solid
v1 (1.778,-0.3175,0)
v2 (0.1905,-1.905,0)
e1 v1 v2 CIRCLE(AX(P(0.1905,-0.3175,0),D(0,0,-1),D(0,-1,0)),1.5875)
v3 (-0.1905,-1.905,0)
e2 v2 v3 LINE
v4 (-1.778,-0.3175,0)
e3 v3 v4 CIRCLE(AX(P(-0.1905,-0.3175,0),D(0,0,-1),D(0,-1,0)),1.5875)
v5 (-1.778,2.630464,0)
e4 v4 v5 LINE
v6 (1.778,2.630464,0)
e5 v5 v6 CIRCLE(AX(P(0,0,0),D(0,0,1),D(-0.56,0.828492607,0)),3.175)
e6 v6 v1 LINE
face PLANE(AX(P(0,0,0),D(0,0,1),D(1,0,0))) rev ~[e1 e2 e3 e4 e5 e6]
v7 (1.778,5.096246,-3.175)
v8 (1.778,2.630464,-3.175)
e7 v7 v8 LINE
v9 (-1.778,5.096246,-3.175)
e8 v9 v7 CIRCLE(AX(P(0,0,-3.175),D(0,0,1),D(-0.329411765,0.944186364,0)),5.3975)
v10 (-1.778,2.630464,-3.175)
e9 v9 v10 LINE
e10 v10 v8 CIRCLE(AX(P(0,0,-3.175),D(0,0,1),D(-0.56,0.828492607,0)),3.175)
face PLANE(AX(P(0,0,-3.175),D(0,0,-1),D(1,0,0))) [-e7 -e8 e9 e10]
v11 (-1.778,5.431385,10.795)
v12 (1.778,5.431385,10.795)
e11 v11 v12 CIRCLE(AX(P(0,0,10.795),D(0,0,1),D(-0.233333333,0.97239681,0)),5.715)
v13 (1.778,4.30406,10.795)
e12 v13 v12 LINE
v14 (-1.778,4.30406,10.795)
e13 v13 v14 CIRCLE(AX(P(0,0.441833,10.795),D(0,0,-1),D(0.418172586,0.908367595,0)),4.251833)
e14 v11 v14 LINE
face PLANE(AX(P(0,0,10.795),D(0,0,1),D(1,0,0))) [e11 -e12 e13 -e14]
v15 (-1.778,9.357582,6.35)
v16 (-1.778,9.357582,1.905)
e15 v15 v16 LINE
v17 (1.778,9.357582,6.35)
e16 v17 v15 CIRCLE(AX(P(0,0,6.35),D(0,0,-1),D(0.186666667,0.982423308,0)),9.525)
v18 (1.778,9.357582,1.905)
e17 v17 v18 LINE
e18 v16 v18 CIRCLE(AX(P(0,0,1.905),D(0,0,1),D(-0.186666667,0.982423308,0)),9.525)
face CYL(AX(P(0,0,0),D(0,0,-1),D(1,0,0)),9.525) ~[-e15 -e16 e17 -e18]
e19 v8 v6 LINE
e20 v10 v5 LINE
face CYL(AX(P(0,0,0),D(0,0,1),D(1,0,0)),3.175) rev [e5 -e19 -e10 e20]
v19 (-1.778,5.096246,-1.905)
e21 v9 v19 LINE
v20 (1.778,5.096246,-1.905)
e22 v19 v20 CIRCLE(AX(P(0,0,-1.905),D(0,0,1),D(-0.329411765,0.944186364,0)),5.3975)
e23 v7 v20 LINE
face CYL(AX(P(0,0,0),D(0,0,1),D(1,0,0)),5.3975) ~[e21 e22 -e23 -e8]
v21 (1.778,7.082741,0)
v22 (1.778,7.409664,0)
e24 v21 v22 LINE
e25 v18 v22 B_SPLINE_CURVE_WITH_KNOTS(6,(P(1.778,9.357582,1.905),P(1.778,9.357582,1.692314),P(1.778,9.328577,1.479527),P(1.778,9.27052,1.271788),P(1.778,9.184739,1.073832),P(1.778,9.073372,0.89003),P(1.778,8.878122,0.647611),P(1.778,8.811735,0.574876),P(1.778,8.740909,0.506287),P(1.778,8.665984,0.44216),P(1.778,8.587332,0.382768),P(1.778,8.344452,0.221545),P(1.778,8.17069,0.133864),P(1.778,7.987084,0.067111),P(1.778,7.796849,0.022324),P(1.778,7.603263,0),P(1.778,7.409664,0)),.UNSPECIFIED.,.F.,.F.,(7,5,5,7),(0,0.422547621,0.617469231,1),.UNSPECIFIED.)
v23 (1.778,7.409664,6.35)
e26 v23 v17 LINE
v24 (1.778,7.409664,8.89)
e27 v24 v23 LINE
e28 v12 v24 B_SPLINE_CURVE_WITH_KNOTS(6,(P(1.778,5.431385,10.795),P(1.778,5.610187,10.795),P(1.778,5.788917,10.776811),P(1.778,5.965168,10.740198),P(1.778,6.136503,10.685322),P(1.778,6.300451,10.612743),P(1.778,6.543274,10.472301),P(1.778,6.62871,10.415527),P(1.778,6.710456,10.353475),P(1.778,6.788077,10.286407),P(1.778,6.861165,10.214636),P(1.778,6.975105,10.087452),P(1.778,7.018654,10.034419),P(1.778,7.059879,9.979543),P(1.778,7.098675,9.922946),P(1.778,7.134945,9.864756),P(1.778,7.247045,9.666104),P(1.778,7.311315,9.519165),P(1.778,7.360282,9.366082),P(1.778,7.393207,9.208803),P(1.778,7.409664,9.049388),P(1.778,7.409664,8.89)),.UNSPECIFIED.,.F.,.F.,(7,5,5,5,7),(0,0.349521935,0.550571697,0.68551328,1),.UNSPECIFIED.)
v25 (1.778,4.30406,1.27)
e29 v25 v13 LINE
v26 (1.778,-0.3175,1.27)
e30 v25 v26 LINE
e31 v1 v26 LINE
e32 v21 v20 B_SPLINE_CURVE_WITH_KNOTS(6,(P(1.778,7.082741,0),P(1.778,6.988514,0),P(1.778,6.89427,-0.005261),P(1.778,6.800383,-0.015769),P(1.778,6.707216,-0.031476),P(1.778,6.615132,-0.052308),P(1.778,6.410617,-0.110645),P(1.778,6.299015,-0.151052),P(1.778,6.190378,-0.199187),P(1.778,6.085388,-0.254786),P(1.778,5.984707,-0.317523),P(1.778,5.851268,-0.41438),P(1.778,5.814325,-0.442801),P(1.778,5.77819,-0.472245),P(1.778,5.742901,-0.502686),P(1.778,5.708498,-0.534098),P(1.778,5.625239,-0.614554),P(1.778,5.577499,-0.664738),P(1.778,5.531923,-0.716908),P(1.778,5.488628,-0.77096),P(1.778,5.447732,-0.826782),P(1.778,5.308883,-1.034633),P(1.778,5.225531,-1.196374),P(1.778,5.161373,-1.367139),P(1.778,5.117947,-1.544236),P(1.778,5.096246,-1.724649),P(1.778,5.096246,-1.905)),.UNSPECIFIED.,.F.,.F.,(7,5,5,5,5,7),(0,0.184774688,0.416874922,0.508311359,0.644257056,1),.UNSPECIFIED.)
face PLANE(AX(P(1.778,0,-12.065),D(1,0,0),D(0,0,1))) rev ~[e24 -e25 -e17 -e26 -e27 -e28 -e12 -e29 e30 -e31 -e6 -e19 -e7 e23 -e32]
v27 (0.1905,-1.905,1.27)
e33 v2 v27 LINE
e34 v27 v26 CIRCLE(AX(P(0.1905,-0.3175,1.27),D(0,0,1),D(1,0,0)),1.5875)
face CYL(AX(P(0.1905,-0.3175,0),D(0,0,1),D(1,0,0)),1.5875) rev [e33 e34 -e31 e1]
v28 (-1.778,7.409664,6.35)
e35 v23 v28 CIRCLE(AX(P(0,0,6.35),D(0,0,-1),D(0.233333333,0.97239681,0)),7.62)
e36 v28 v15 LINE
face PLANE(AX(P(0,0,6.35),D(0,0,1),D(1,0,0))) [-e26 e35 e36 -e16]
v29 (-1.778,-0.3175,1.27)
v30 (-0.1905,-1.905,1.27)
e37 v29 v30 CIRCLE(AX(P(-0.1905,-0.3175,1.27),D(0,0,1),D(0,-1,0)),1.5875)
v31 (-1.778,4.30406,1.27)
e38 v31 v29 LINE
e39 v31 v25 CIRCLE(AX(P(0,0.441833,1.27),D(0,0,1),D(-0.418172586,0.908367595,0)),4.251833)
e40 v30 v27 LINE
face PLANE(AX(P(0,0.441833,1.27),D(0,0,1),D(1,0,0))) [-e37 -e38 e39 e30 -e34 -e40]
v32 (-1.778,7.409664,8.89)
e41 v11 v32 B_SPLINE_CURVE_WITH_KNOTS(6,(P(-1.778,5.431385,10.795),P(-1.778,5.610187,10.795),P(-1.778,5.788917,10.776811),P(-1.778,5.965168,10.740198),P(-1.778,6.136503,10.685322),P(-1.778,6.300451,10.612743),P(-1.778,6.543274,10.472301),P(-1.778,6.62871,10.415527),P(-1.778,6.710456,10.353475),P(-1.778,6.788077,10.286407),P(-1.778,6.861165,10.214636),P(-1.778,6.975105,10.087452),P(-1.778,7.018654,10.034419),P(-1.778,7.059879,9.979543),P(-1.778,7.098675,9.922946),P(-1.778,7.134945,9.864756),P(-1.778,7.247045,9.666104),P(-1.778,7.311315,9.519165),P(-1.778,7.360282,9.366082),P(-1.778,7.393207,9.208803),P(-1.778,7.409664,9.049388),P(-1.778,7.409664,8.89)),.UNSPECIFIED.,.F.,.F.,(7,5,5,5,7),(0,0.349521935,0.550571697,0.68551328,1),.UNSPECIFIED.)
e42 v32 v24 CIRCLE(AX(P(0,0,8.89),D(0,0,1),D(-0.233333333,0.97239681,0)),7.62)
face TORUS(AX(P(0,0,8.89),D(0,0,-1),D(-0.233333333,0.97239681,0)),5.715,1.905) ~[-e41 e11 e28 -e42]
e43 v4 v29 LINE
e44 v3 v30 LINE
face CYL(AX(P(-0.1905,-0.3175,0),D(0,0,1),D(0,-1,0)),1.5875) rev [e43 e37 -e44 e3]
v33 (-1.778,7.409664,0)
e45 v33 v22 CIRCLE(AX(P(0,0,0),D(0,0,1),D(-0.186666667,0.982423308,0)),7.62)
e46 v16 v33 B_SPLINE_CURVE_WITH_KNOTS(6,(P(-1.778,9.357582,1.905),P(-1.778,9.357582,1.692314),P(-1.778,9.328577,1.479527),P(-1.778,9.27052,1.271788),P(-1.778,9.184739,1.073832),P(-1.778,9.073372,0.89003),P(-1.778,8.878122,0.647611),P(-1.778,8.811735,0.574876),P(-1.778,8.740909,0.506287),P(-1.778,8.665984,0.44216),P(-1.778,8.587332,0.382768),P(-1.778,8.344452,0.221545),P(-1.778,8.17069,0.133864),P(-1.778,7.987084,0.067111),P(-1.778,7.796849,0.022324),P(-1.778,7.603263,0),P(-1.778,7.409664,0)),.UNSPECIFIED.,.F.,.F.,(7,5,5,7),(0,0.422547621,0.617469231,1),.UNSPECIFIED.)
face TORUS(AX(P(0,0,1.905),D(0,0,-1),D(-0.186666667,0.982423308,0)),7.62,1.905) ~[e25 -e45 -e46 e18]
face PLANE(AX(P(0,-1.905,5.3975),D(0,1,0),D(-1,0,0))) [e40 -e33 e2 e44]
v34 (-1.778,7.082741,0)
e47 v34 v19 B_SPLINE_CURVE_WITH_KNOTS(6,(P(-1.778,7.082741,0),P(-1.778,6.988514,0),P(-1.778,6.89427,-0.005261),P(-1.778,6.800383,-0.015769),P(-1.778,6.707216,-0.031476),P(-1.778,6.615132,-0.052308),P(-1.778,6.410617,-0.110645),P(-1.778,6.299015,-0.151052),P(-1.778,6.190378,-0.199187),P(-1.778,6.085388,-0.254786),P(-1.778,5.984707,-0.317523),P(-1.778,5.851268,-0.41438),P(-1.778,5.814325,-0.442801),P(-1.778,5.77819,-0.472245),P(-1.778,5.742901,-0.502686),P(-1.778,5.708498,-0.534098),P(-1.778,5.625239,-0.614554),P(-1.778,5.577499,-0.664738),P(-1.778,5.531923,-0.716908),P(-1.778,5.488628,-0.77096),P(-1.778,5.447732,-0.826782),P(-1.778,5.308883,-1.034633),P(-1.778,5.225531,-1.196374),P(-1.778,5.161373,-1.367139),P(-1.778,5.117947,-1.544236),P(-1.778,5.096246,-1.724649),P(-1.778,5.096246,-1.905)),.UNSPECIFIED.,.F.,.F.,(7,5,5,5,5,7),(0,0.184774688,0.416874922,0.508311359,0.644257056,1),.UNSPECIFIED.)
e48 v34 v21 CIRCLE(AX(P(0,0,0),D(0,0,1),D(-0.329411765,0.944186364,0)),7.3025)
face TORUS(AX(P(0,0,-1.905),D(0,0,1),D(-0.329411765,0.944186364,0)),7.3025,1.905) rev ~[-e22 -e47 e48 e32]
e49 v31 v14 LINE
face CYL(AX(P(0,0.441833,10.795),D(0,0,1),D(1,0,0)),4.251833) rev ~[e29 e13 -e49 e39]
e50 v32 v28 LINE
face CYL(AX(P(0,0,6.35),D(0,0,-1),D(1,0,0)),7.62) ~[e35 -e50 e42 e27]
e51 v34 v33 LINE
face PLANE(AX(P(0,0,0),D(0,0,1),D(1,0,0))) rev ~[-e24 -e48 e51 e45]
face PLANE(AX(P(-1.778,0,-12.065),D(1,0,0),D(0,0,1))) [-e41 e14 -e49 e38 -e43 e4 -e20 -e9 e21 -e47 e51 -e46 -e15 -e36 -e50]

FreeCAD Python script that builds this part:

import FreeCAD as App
import Part
import Sketcher
Q = App.Units.Quantity


def edges_at(feature, points):
    """Names of the edges that pass closest to the given points."""
    edges = feature.Shape.Edges
    near = lambda p: min(range(len(edges)), key=lambda i: edges[i].distToShape(Part.Vertex(*p))[0])
    return sorted({f"Edge{near(p) + 1}" for p in points})


def add_polygon(sketch, points):
    """Adds a closed chain of lines whose ends are joined by coincident constraints."""
    first, n = sketch.GeometryCount, len(points)
    for a, b in zip(points, points[1:] + points[:1]):
        sketch.addGeometry(Part.LineSegment(App.Vector(*a, 0), App.Vector(*b, 0)), False)
    for i in range(n):
        sketch.addConstraint(Sketcher.Constraint("Coincident", first + i, 2, first + (i + 1) % n, 1))

doc = App.newDocument("Part")
params = doc.addObject("Spreadsheet::Sheet", "Params")
for row, (alias, value) in enumerate([
    ("sketch1_diameter", "0.75 in"),
    ("pad1_length", "0.25 in"),
    ("sketch2_diameter", "0.6 in"),
    ("pad2_length", "0.175 in"),
    ("sketch3_diameter", "0.25 in"),
    ("sketch3_diameter2", "0.425 in"),
    ("pad3_length", "0.125 in"),
    ("sketch4_height", "1 in"),
    ("sketch4_width", "0.14 in"),
    ("pocket1_length", "0.5 in"),
    ("sketch5_width", "0.14 in"),
    ("sketch5_height", "0.425 in"),
    ("pocket2_length", "0.075 in"),
    ("fillet_radius", "0.0625 in"),
    ("fillet2_radius", "0.075 in"),
    ("pocket3_length", "0.375 in"),
], start=1):
    params.set(f"A{row}", alias)
    params.set(f"B{row}", "=" + value)
    params.setAlias(f"B{row}", alias)

body = doc.addObject("PartDesign::Body", "Body")

# Sketch on XY plane
sketch1 = body.newObject("Sketcher::SketchObject", "Sketch")
sketch1.AttachmentSupport = (doc.getObject("XY_Plane"), [""])
sketch1.MapMode = "FlatFace"
sketch1.addGeometry(Part.Circle(App.Vector(0, 0, 0), App.Vector(0, 0, 1), 10), False)
sketch1.addConstraint(Sketcher.Constraint("Coincident", 0, 3, -1, 1))
sketch1.addConstraint(Sketcher.Constraint("Diameter", 0, Q("0.75 in")))
sketch1.setExpression("Constraints[1]", "Params.sketch1_diameter")
pad1 = body.newObject("PartDesign::Pad", "Pad")
pad1.Profile = sketch1
pad1.setExpression("Length", "Params.pad1_length")

# Sketch on XY plane
sketch2 = body.newObject("Sketcher::SketchObject", "Sketch001")
sketch2.AttachmentSupport = (doc.getObject("XY_Plane"), [""])
sketch2.MapMode = "FlatFace"
sketch2.AttachmentOffset = App.Placement(App.Vector(0, 0, 0.25 * 25.4), App.Rotation())
sketch2.addGeometry(Part.Circle(App.Vector(0, 0, 0), App.Vector(0, 0, 1), 8), False)
sketch2.addConstraint(Sketcher.Constraint("Coincident", 0, 3, -1, 1))
sketch2.addConstraint(Sketcher.Constraint("Diameter", 0, Q("0.6 in")))
sketch2.setExpression("Constraints[1]", "Params.sketch2_diameter")
pad2 = body.newObject("PartDesign::Pad", "Pad001")
pad2.Profile = sketch2
pad2.setExpression("Length", "Params.pad2_length")

# Sketch on XY plane
sketch3 = body.newObject("Sketcher::SketchObject", "Sketch002")
sketch3.AttachmentSupport = (doc.getObject("XY_Plane"), [""])
sketch3.MapMode = "FlatFace"
sketch3.addGeometry(Part.Circle(App.Vector(0, 0, 0), App.Vector(0, 0, 1), 5.4), False)
sketch3.addGeometry(Part.Circle(App.Vector(0, 0, 0), App.Vector(0, 0, 1), 3.2), False)
sketch3.addConstraint(Sketcher.Constraint("Coincident", 0, 3, -1, 1))
sketch3.addConstraint(Sketcher.Constraint("Coincident", 1, 3, -1, 1))
sketch3.addConstraint(Sketcher.Constraint("Diameter", 1, Q("0.25 in")))
sketch3.addConstraint(Sketcher.Constraint("Diameter", 0, Q("0.425 in")))
sketch3.setExpression("Constraints[2]", "Params.sketch3_diameter")
sketch3.setExpression("Constraints[3]", "Params.sketch3_diameter2")
pad3 = body.newObject("PartDesign::Pad", "Pad002")
pad3.Profile = sketch3
pad3.setExpression("Length", "Params.pad3_length")
pad3.Reversed = True

# Sketch on XZ plane
sketch4 = body.newObject("Sketcher::SketchObject", "Sketch003")
sketch4.AttachmentSupport = (doc.getObject("XZ_Plane"), [""])
sketch4.MapMode = "FlatFace"
add_polygon(sketch4, [(-1.8, 13.3), (-1.8, -12.1), (1.8, -12.1), (1.8, 13.3)])  # lines 0-3
sketch4.addConstraint(Sketcher.Constraint("Vertical", 0))
sketch4.addConstraint(Sketcher.Constraint("Horizontal", 1))
sketch4.addConstraint(Sketcher.Constraint("Vertical", 2))
sketch4.addConstraint(Sketcher.Constraint("Horizontal", 3))
sketch4.addConstraint(Sketcher.Constraint("DistanceY", 0, 2, 0, 1, Q("1 in")))
sketch4.addConstraint(Sketcher.Constraint("DistanceX", 1, 1, 1, 2, Q("0.14 in")))
sketch4.addConstraint(Sketcher.Constraint("DistanceX", 0, 2, -1, 1, Q("0.07 in")))
sketch4.addConstraint(Sketcher.Constraint("DistanceY", 0, 2, -1, 1, Q("0.475 in")))
sketch4.setExpression("Constraints[8]", "Params.sketch4_height")
sketch4.setExpression("Constraints[9]", "Params.sketch4_width")
pocket1 = body.newObject("PartDesign::Pocket", "Pocket")
pocket1.Profile = sketch4
pocket1.setExpression("Length", "Params.pocket1_length")

# Sketch on XZ plane
sketch5 = body.newObject("Sketcher::SketchObject", "Sketch004")
sketch5.AttachmentSupport = (doc.getObject("XZ_Plane"), [""])
sketch5.MapMode = "FlatFace"
add_polygon(sketch5, [(1.8, 10.8), (1.8, 0), (-1.8, 0), (-1.8, 10.8)])  # lines 0-3
sketch5.addConstraint(Sketcher.Constraint("Vertical", 0))
sketch5.addConstraint(Sketcher.Constraint("Horizontal", 1))
sketch5.addConstraint(Sketcher.Constraint("Vertical", 2))
sketch5.addConstraint(Sketcher.Constraint("Horizontal", 3))
sketch5.addConstraint(Sketcher.Constraint("Symmetric", 0, 2, 1, 2, -1, 1))
sketch5.addConstraint(Sketcher.Constraint("DistanceX", 1, 2, 1, 1, Q("0.14 in")))
sketch5.addConstraint(Sketcher.Constraint("DistanceY", 0, 2, 0, 1, Q("0.425 in")))
sketch5.setExpression("Constraints[9]", "Params.sketch5_width")
sketch5.setExpression("Constraints[10]", "Params.sketch5_height")
pocket2 = body.newObject("PartDesign::Pocket", "Pocket001")
pocket2.Profile = sketch5
pocket2.setExpression("Length", "Params.pocket2_length")
pocket2.Reversed = True
doc.recompute()

fillet = body.newObject("PartDesign::Fillet", "Fillet")
fillet.Base = (pocket2, edges_at(pocket2, [(-1.778, -1.905, 5.397), (1.778, -1.905, 5.397)]))
fillet.setExpression("Radius", "Params.fillet_radius")
doc.recompute()

fillet2 = body.newObject("PartDesign::Fillet", "Fillet001")
fillet2.Base = (fillet, edges_at(fillet, [(0, -5.397, 0), (0, -9.525, 0), (0, -7.62, 10.795)]))
fillet2.setExpression("Radius", "Params.fillet2_radius")

# Sketch on XY plane
sketch6 = body.newObject("Sketcher::SketchObject", "Sketch005")
sketch6.AttachmentSupport = (doc.getObject("XY_Plane"), [""])
sketch6.MapMode = "FlatFace"
sketch6.AttachmentOffset = App.Placement(App.Vector(0, 0, 0.425 * 25.4), App.Rotation())
sketch6.addGeometry(Part.Circle(App.Vector(0, 0.4, 0), App.Vector(0, 0, 1), 4.3), False)
sketch6.addConstraint(Sketcher.Constraint("PointOnObject", 0, 3, -2))
sketch6.addConstraint(Sketcher.Constraint("Diameter", 0, Q("8.503666 mm")))
sketch6.addConstraint(Sketcher.Constraint("DistanceY", -1, 1, 0, 3, Q("0.441833 mm")))
pocket3 = body.newObject("PartDesign::Pocket", "Pocket002")
pocket3.Profile = sketch6
pocket3.setExpression("Length", "Params.pocket3_length")

doc.recompute()
